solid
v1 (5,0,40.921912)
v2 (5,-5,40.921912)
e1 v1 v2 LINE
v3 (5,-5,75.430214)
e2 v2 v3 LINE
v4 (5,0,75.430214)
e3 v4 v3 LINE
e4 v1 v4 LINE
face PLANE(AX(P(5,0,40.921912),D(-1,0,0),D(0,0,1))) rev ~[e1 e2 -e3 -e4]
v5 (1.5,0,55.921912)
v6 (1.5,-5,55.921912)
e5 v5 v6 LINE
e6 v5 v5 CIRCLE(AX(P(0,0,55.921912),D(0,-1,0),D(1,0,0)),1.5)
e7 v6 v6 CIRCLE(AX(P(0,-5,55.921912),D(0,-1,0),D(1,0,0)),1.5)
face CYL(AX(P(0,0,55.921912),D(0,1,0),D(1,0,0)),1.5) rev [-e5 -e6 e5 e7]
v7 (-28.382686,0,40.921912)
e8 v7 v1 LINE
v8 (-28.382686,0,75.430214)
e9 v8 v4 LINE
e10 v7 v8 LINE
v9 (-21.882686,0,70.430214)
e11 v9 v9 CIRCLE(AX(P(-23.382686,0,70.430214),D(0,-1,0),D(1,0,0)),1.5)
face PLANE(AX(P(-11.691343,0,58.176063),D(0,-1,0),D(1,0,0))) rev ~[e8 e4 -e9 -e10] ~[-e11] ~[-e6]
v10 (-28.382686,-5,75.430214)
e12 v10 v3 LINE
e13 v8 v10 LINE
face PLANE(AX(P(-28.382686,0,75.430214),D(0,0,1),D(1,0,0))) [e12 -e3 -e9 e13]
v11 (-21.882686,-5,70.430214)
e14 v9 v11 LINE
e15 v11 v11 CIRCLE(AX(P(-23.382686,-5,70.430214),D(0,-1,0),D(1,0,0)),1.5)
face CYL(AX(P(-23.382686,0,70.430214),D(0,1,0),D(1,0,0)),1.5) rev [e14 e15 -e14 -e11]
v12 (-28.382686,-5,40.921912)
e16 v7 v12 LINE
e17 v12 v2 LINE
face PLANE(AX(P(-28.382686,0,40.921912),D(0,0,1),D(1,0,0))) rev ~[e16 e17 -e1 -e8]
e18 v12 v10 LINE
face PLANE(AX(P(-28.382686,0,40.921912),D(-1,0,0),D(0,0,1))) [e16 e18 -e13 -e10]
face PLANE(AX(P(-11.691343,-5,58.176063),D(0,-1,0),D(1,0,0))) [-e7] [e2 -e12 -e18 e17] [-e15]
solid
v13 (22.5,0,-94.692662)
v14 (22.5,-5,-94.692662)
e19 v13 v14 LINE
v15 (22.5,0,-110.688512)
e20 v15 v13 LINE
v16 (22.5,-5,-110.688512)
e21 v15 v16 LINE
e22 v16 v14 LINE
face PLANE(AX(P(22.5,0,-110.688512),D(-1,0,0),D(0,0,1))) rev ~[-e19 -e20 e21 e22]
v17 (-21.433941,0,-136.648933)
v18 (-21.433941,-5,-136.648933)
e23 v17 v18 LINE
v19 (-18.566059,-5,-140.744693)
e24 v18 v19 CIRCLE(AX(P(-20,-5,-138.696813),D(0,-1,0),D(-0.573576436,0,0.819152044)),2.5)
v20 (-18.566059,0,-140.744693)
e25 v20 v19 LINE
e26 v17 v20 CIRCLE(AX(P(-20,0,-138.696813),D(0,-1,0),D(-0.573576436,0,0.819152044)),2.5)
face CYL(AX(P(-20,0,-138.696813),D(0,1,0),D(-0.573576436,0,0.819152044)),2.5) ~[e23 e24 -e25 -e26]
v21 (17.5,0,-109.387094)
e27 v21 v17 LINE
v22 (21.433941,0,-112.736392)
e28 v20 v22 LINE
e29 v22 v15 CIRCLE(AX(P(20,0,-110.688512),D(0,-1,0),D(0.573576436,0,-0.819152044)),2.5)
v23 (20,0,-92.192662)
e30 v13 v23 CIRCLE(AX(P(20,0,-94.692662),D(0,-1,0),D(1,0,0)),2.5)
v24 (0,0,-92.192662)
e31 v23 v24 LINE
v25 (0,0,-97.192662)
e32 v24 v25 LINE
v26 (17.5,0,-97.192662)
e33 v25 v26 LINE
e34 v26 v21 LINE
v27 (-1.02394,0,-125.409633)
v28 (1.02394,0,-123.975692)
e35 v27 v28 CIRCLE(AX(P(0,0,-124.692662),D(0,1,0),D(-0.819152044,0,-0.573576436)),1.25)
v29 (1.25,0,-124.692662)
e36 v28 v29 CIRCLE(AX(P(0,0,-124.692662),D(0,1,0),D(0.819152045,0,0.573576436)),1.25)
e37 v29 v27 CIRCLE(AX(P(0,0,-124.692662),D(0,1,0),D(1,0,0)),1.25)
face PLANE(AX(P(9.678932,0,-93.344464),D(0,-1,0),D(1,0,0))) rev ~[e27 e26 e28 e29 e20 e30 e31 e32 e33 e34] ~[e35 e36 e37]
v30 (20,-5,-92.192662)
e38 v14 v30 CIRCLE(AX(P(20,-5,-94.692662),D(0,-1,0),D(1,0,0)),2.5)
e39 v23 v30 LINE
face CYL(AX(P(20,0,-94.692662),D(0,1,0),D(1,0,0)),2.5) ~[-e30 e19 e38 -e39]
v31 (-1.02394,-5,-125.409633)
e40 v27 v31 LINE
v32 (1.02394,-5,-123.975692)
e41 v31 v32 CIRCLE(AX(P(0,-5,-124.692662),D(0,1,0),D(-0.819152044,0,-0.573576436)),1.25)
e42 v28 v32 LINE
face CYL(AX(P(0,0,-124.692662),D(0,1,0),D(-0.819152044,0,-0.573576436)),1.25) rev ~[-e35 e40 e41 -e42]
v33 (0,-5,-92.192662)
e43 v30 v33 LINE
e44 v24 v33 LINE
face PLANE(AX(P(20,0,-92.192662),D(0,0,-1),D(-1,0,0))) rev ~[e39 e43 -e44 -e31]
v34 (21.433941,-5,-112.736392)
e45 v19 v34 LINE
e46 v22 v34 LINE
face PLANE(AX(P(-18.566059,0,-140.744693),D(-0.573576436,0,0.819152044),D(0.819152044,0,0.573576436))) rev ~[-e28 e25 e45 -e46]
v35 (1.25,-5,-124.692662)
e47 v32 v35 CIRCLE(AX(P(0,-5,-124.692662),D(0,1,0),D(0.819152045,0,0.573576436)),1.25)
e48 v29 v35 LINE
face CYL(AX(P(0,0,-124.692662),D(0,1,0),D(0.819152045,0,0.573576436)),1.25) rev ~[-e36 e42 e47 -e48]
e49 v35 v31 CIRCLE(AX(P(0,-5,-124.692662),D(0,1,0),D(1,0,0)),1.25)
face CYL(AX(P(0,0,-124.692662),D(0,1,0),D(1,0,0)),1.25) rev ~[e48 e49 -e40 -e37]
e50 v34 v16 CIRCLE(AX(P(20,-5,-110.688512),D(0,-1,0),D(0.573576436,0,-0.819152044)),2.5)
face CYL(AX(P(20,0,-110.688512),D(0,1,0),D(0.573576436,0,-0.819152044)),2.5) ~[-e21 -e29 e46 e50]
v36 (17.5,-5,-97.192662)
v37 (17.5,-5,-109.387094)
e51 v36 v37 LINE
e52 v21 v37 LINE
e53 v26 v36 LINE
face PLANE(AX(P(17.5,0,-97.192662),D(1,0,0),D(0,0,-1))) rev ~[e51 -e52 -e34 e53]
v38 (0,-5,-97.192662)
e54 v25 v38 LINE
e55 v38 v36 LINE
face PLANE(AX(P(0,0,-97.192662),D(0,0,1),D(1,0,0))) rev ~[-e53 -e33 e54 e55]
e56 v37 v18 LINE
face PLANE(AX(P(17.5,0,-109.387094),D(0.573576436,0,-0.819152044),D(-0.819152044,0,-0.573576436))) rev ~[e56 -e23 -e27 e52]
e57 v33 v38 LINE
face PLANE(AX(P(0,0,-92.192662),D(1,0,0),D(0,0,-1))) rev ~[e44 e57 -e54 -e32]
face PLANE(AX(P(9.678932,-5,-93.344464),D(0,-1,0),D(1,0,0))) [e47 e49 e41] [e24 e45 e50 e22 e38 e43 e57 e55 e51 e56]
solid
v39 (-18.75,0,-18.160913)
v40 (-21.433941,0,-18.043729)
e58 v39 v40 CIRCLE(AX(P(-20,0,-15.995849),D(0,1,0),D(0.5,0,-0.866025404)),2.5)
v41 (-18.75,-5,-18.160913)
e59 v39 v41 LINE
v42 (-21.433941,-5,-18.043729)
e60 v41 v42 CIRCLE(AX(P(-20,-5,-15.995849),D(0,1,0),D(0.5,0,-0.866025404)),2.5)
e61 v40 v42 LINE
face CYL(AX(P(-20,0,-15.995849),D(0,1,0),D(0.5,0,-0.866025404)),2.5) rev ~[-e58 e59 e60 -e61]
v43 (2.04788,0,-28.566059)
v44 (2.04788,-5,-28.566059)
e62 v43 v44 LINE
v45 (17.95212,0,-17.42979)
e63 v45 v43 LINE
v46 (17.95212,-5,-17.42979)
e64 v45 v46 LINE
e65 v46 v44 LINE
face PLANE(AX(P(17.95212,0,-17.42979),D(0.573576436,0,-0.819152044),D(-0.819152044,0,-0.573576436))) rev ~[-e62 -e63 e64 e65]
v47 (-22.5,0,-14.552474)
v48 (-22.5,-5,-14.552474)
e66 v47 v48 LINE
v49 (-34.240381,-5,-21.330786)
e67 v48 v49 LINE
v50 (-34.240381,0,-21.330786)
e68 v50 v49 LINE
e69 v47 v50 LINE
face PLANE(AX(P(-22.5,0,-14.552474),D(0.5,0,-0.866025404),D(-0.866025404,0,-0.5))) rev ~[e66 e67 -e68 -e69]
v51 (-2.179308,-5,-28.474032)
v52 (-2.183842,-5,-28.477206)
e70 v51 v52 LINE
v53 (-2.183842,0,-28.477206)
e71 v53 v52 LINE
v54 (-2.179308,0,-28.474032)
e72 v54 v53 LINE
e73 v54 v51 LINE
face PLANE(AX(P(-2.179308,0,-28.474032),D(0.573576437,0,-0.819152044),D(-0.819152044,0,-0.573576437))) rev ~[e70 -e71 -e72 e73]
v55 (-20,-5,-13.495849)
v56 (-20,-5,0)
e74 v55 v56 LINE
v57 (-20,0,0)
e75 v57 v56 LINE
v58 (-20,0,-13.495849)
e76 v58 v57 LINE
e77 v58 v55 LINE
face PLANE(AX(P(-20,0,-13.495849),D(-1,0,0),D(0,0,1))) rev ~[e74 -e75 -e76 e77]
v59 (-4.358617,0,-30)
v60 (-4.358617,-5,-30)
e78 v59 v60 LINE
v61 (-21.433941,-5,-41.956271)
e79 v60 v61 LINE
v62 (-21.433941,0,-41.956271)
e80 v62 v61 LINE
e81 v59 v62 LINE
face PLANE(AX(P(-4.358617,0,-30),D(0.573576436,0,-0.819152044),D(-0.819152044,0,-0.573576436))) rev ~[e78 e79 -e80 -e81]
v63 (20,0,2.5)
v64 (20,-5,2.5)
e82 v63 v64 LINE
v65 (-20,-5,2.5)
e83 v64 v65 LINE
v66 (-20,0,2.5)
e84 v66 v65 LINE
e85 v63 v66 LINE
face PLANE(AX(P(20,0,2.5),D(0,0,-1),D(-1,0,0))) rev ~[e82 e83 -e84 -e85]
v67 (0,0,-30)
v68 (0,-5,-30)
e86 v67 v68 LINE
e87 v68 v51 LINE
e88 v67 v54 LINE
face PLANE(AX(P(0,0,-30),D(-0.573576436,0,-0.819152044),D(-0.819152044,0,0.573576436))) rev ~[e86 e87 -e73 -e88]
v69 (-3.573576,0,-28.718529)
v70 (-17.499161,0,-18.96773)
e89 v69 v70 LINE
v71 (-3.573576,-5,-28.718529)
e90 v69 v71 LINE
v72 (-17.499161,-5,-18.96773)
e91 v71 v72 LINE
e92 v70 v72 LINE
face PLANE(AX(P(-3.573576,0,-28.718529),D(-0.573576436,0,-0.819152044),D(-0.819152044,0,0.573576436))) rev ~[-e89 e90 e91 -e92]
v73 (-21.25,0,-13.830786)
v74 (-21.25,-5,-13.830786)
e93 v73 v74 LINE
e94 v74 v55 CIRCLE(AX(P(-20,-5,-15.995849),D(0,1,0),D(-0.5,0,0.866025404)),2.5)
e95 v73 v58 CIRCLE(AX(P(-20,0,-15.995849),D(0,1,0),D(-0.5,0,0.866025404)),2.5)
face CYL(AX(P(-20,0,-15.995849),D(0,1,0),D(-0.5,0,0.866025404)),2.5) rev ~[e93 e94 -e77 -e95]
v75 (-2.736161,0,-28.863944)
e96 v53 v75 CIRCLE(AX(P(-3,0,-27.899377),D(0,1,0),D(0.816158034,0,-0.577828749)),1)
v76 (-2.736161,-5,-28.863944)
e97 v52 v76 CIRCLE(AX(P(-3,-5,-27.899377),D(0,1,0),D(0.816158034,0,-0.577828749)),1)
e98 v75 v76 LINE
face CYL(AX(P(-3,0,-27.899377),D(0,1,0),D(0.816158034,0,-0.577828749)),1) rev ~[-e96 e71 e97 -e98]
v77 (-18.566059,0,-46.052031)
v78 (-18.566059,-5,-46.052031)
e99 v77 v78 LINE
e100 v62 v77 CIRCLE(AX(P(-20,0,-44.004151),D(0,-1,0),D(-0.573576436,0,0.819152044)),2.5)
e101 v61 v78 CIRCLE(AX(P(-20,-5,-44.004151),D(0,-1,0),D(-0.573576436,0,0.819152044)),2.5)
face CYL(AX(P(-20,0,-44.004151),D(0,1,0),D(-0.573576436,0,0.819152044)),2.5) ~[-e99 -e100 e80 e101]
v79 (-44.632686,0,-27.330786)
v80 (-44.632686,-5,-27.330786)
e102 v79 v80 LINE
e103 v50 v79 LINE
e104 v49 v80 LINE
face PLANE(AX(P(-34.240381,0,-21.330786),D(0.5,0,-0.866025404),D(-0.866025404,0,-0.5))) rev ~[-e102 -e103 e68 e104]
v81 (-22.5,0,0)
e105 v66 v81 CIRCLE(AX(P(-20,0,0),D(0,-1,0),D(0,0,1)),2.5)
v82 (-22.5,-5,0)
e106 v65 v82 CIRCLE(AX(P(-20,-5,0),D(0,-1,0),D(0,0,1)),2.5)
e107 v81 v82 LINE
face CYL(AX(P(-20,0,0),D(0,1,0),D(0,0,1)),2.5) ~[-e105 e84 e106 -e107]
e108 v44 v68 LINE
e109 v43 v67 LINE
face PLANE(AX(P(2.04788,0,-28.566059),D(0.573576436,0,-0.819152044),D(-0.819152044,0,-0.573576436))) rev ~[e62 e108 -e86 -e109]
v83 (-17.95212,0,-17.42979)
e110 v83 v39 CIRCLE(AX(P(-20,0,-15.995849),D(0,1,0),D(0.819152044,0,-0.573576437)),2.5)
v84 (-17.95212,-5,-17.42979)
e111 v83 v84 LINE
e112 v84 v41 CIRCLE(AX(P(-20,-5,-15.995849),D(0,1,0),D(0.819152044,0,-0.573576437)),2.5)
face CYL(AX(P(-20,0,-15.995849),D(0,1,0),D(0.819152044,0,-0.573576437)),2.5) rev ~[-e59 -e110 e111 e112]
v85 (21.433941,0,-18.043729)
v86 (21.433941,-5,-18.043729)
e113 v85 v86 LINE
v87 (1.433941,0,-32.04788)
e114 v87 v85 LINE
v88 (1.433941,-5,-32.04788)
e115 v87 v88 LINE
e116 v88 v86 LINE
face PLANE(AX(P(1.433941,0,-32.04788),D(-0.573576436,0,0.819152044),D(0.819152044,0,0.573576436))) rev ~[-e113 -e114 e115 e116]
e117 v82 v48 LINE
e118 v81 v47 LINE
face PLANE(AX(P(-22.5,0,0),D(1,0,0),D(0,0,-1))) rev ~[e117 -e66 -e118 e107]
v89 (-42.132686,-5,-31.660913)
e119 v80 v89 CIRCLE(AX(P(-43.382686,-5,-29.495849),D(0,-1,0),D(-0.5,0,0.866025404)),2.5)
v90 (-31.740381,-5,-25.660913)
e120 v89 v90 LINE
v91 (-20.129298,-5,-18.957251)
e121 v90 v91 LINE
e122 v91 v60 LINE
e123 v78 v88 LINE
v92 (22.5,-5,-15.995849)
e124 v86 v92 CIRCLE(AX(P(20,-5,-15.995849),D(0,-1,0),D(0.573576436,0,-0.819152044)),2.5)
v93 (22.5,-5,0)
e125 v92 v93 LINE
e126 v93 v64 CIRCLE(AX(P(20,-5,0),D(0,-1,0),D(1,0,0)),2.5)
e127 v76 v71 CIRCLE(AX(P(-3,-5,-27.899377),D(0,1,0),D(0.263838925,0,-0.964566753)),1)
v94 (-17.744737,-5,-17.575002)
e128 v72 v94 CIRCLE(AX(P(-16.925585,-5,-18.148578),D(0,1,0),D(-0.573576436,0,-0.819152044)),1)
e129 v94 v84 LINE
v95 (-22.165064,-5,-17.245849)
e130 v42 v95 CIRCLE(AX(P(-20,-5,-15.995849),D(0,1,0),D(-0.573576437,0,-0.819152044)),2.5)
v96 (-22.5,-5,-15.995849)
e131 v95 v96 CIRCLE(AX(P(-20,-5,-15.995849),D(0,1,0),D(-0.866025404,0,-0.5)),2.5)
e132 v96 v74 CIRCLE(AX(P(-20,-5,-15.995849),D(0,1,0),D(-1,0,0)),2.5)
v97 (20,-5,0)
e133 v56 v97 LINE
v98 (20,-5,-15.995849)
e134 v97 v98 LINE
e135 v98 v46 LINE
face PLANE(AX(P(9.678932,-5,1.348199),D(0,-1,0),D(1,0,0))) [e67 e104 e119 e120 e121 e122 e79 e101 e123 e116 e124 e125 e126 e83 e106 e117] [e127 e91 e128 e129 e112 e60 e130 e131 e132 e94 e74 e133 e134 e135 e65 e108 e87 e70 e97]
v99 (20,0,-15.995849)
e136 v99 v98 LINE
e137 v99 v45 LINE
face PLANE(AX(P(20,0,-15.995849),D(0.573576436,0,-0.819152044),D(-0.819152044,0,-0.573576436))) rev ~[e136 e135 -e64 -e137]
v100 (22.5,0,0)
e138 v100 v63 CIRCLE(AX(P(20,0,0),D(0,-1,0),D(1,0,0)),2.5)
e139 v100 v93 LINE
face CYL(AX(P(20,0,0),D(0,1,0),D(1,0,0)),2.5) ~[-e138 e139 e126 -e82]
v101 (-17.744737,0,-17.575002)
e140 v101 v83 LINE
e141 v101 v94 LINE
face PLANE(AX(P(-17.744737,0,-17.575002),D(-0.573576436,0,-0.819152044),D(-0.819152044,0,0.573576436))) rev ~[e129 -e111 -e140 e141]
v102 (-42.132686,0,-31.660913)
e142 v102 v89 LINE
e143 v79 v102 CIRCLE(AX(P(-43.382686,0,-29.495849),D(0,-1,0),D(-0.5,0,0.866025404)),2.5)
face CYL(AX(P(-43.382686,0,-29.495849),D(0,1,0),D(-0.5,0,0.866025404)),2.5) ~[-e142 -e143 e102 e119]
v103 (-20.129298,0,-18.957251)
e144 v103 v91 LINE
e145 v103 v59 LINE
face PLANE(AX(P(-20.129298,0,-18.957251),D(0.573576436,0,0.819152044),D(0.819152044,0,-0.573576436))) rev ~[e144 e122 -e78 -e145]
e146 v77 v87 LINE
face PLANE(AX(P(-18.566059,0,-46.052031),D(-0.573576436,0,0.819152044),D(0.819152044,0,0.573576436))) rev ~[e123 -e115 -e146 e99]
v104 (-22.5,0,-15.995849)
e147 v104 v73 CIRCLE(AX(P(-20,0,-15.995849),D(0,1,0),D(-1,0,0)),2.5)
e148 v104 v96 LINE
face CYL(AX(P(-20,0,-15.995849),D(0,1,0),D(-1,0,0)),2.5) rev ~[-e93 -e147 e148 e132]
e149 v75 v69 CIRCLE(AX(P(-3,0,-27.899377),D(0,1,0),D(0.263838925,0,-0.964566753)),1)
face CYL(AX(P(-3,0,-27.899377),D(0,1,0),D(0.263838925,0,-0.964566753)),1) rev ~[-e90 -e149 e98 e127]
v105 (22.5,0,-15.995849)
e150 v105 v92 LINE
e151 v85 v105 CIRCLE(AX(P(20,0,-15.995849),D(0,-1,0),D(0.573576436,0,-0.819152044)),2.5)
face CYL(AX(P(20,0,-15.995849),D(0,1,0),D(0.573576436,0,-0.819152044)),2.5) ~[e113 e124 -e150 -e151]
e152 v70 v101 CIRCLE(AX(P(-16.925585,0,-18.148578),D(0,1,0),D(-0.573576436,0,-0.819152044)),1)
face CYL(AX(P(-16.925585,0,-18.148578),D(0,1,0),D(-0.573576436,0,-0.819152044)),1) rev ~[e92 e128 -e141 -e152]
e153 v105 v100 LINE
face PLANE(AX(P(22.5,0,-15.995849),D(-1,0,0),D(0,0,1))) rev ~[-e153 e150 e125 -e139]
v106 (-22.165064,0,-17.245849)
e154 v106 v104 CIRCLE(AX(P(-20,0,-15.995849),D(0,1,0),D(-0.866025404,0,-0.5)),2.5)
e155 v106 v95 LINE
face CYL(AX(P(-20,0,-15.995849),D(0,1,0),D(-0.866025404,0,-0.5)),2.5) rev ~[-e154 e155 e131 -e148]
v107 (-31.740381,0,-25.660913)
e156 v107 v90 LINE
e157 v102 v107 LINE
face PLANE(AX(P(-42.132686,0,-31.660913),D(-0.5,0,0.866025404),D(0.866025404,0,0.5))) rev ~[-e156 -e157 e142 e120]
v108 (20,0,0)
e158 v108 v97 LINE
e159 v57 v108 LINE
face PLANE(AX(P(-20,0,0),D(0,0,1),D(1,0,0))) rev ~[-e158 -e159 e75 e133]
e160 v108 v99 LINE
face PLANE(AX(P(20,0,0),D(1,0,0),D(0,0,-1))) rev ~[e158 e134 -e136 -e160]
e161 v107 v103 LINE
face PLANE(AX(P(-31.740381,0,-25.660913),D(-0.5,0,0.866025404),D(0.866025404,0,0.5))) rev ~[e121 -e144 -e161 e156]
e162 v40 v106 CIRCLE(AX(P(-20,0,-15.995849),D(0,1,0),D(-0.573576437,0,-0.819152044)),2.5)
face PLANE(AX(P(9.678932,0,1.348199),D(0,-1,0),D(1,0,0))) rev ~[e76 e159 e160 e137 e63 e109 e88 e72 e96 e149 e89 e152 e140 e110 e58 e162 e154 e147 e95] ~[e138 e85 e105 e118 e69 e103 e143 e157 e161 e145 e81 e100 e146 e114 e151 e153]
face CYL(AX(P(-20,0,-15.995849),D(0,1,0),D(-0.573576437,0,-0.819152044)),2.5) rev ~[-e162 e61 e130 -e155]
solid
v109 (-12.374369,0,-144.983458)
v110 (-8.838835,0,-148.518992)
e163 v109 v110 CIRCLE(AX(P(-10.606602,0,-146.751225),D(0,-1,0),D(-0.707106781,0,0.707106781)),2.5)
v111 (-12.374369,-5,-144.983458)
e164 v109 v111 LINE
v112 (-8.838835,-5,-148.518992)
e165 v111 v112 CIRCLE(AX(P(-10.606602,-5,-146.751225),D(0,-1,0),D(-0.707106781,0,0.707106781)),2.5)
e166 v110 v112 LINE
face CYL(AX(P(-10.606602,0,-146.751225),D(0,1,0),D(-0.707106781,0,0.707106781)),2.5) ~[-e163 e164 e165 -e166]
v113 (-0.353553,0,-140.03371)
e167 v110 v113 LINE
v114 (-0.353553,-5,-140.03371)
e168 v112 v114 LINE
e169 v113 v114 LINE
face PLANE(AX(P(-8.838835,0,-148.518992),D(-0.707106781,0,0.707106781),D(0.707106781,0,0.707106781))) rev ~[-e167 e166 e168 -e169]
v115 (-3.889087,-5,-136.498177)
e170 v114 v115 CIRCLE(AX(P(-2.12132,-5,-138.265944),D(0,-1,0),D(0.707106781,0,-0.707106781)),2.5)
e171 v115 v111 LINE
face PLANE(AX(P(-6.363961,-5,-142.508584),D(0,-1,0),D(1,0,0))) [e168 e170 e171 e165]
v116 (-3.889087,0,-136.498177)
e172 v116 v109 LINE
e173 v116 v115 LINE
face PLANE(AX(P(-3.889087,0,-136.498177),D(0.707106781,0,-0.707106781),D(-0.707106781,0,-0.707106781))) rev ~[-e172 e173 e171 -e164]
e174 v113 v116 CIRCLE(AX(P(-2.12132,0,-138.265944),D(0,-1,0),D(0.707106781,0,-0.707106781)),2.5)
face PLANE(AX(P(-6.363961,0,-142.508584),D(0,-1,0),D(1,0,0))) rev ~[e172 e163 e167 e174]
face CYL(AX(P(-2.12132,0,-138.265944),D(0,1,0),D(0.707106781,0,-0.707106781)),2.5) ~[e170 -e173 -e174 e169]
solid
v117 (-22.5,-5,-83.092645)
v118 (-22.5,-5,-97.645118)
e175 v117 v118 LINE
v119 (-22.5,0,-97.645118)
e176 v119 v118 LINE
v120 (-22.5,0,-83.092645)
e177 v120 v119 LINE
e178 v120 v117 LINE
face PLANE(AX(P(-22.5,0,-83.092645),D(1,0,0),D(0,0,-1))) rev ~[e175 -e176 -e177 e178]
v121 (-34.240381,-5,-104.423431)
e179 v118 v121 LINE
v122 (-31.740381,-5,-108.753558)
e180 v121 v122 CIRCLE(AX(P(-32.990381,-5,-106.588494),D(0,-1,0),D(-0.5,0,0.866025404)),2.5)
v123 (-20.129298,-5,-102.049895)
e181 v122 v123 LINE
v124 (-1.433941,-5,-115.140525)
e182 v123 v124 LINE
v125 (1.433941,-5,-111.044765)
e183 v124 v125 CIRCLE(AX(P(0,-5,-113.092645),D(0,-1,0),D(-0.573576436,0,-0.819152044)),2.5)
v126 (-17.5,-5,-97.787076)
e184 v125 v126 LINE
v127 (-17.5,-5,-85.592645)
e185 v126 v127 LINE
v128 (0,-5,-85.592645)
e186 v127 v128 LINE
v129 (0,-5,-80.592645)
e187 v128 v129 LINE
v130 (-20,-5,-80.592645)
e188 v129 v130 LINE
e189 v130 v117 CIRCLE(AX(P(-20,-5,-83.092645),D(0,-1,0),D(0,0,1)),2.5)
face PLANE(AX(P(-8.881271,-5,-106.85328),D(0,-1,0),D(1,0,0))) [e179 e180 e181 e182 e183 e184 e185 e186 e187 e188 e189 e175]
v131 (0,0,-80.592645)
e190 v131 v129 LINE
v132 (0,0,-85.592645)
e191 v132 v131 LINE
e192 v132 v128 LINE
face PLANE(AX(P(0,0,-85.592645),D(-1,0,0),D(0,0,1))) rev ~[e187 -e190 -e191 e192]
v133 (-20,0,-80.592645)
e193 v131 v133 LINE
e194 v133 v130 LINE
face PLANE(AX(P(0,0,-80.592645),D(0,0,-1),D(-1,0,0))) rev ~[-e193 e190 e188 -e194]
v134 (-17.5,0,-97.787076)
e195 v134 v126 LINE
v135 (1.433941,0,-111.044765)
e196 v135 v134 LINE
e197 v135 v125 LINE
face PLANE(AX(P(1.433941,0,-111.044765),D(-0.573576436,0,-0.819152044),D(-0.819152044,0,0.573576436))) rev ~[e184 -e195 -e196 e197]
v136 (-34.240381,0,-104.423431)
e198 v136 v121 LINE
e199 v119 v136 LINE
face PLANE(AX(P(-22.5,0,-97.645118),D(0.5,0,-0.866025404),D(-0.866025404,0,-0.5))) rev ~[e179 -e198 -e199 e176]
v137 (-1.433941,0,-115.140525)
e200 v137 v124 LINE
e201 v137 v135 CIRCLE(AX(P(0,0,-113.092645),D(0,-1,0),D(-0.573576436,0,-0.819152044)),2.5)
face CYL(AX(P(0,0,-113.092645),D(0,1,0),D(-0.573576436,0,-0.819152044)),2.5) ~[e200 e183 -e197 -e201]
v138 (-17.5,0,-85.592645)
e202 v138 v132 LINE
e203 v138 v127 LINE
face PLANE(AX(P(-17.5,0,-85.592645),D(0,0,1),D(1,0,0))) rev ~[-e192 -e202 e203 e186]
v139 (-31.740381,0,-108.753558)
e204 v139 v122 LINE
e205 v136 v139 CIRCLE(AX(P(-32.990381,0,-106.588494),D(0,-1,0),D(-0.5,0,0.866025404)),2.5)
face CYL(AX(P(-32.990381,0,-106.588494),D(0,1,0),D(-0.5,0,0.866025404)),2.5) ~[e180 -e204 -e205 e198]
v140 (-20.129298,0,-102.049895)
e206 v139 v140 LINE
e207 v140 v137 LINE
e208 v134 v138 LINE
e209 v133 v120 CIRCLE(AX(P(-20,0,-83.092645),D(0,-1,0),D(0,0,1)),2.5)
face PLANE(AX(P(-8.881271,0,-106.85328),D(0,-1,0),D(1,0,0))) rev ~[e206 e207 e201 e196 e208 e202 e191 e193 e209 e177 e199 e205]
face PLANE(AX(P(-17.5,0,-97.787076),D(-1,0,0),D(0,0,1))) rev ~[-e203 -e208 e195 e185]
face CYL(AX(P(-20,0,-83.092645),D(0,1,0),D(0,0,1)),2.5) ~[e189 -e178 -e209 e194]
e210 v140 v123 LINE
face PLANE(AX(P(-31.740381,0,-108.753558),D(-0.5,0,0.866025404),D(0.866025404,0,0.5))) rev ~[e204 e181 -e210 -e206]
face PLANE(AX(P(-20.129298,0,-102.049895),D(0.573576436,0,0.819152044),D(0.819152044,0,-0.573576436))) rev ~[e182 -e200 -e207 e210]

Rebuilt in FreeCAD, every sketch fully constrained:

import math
import FreeCAD as App
import Part
import Sketcher
from FreeCAD import Vector
Q = App.Units.Quantity


def add_polygon(sketch, points):
    """Adds a closed chain of lines whose ends are joined by coincident constraints."""
    first, n = sketch.GeometryCount, len(points)
    for a, b in zip(points, points[1:] + points[:1]):
        sketch.addGeometry(Part.LineSegment(App.Vector(*a, 0), App.Vector(*b, 0)), False)
    for i in range(n):
        sketch.addConstraint(Sketcher.Constraint("Coincident", first + i, 2, first + (i + 1) % n, 1))

doc = App.newDocument("Part")
params = doc.addObject("Spreadsheet::Sheet", "Params")
for row, (alias, value) in enumerate([
    ("sketch1_radius", "1 mm"),
    ("sketch1_radius2", "2.5 mm"),
    ("sketch1_width", "40 mm"),
    ("sketch1_length", "12 mm"),
    ("sketch1_length2", "17 mm"),
    ("pad1_length", "5 mm"),
    ("sketch2_radius", "2.5 mm"),
    ("sketch2_width", "20 mm"),
    ("sketch2_height", "5 mm"),
    ("sketch2_width2", "17.5 mm"),
    ("pad2_length", "5 mm"),
    ("sketch3_radius", "2.5 mm"),
    ("sketch3_width", "20 mm"),
    ("sketch3_height", "5 mm"),
    ("sketch3_radius2", "1.25 mm"),
    ("sketch3_width2", "17.5 mm"),
    ("pad3_length", "5 mm"),
    ("sketch4_radius", "2.5 mm"),
    ("sketch4_length", "12 mm"),
    ("pad4_length", "5 mm"),
    ("sketch5_diameter", "3 mm"),
    ("pad5_length", "5 mm"),
], start=1):
    params.set(f"A{row}", alias)
    params.set(f"B{row}", "=" + value)
    params.setAlias(f"B{row}", alias)

body = doc.addObject("PartDesign::Body", "Body")

# Sketch on XZ plane
sketch1 = doc.addObject("Sketcher::SketchObject", "Sketch")
body.addObject(sketch1)
sketch1.AttachmentSupport = (doc.XZ_Plane, [""])
sketch1.MapMode = "FlatFace"
sketch1.addGeometry([
    Part.LineSegment(Vector(-31.74, -25.661, 0), Vector(-20.129, -18.957, 0)),  # 0
    Part.LineSegment(Vector(-20.129, -18.957, 0), Vector(-4.359, -30, 0)),  # 1
    Part.LineSegment(Vector(-4.359, -30, 0), Vector(-21.434, -41.956, 0)),  # 2
    Part.ArcOfCircle(Part.Circle(Vector(-20, -44.004, 0), Vector(0, 0, 1), 2.5), math.radians(125), math.radians(305)),  # 3
    Part.LineSegment(Vector(-18.566, -46.052, 0), Vector(1.434, -32.048, 0)),  # 4
    Part.LineSegment(Vector(1.434, -32.048, 0), Vector(21.434, -18.044, 0)),  # 5
    Part.ArcOfCircle(Part.Circle(Vector(20, -15.996, 0), Vector(0, 0, 1), 2.5), math.radians(-55), math.radians(0)),  # 6
    Part.LineSegment(Vector(22.5, -15.996, 0), Vector(22.5, 0, 0)),  # 7
    Part.ArcOfCircle(Part.Circle(Vector(20, 0, 0), Vector(0, 0, 1), 2.5), math.radians(0), math.radians(90)),  # 8
    Part.LineSegment(Vector(20, 2.5, 0), Vector(-20, 2.5, 0)),  # 9
    Part.ArcOfCircle(Part.Circle(Vector(-20, 0, 0), Vector(0, 0, 1), 2.5), math.radians(90), math.radians(180)),  # 10
    Part.LineSegment(Vector(-22.5, 0, 0), Vector(-22.5, -14.552, 0)),  # 11
    Part.LineSegment(Vector(-22.5, -14.552, 0), Vector(-34.24, -21.331, 0)),  # 12
    Part.LineSegment(Vector(-34.24, -21.331, 0), Vector(-44.633, -27.331, 0)),  # 13
    Part.ArcOfCircle(Part.Circle(Vector(-43.383, -29.496, 0), Vector(0, 0, 1), 2.5), math.radians(120), math.radians(300)),  # 14
    Part.LineSegment(Vector(-42.133, -31.661, 0), Vector(-31.74, -25.661, 0)),  # 15
    Part.ArcOfCircle(Part.Circle(Vector(-20, -15.996, 0), Vector(0, 0, 1), 2.5), math.radians(-60), math.radians(-35)),  # 16
    Part.ArcOfCircle(Part.Circle(Vector(-20, -15.996, 0), Vector(0, 0, 1), 2.5), math.radians(-125), math.radians(-60)),  # 17
    Part.ArcOfCircle(Part.Circle(Vector(-20, -15.996, 0), Vector(0, 0, 1), 2.5), math.radians(-150), math.radians(-125)),  # 18
    Part.ArcOfCircle(Part.Circle(Vector(-20, -15.996, 0), Vector(0, 0, 1), 2.5), math.radians(180), math.radians(210)),  # 19
    Part.ArcOfCircle(Part.Circle(Vector(-20, -15.996, 0), Vector(0, 0, 1), 2.5), math.radians(120), math.radians(180)),  # 20
    Part.ArcOfCircle(Part.Circle(Vector(-20, -15.996, 0), Vector(0, 0, 1), 2.5), math.radians(90), math.radians(120)),  # 21
    Part.LineSegment(Vector(-20, -13.496, 0), Vector(-20, 0, 0)),  # 22
    Part.LineSegment(Vector(-20, 0, 0), Vector(20, 0, 0)),  # 23
    Part.LineSegment(Vector(20, 0, 0), Vector(20, -15.996, 0)),  # 24
    Part.LineSegment(Vector(20, -15.996, 0), Vector(17.952, -17.43, 0)),  # 25
    Part.LineSegment(Vector(17.952, -17.43, 0), Vector(2.048, -28.566, 0)),  # 26
    Part.LineSegment(Vector(2.048, -28.566, 0), Vector(0, -30, 0)),  # 27
    Part.LineSegment(Vector(0, -30, 0), Vector(-2.179, -28.474, 0)),  # 28
    Part.LineSegment(Vector(-2.179, -28.474, 0), Vector(-2.184, -28.477, 0)),  # 29
    Part.ArcOfCircle(Part.Circle(Vector(-3, -27.899, 0), Vector(0, 0, 1), 1), math.radians(-75), math.radians(-35)),  # 30
    Part.ArcOfCircle(Part.Circle(Vector(-3, -27.899, 0), Vector(0, 0, 1), 1), math.radians(-125), math.radians(-75)),  # 31
    Part.LineSegment(Vector(-3.574, -28.719, 0), Vector(-17.499, -18.968, 0)),  # 32
    Part.ArcOfCircle(Part.Circle(Vector(-16.926, -18.149, 0), Vector(0, 0, 1), 1), math.radians(145), math.radians(235)),  # 33
    Part.LineSegment(Vector(-17.745, -17.575, 0), Vector(-17.952, -17.43, 0)),  # 34
], False)
sketch1.addConstraint([
    Sketcher.Constraint("Coincident", 0, 2, 1, 1),
    Sketcher.Constraint("Coincident", 1, 2, 2, 1),
    Sketcher.Constraint("Tangent", 2, 2, 3, 1),
    Sketcher.Constraint("Tangent", 3, 2, 4, 1),
    Sketcher.Constraint("Coincident", 4, 2, 5, 1),
    Sketcher.Constraint("Tangent", 5, 2, 6, 1),
    Sketcher.Constraint("Tangent", 6, 2, 7, 1),
    Sketcher.Constraint("Tangent", 7, 2, 8, 1),
    Sketcher.Constraint("Tangent", 8, 2, 9, 1),
    Sketcher.Constraint("Tangent", 9, 2, 10, 1),
    Sketcher.Constraint("Tangent", 10, 2, 11, 1),
    Sketcher.Constraint("Coincident", 11, 2, 12, 1),
    Sketcher.Constraint("Coincident", 12, 2, 13, 1),
    Sketcher.Constraint("Tangent", 13, 2, 14, 1),
    Sketcher.Constraint("Tangent", 14, 2, 15, 1),
    Sketcher.Constraint("Coincident", 15, 2, 0, 1),
    Sketcher.Constraint("Tangent", 16, 1, 17, 2),
    Sketcher.Constraint("Tangent", 17, 1, 18, 2),
    Sketcher.Constraint("Tangent", 18, 1, 19, 2),
    Sketcher.Constraint("Tangent", 19, 1, 20, 2),
    Sketcher.Constraint("Tangent", 20, 1, 21, 2),
    Sketcher.Constraint("Coincident", 21, 1, 22, 1),
    Sketcher.Constraint("Coincident", 22, 2, 23, 1),
    Sketcher.Constraint("Coincident", 23, 2, 24, 1),
    Sketcher.Constraint("Coincident", 24, 2, 25, 1),
    Sketcher.Constraint("Coincident", 25, 2, 26, 1),
    Sketcher.Constraint("Coincident", 26, 2, 27, 1),
    Sketcher.Constraint("Coincident", 27, 2, 28, 1),
    Sketcher.Constraint("Coincident", 28, 2, 29, 1),
    Sketcher.Constraint("Coincident", 29, 2, 30, 2),
    Sketcher.Constraint("Tangent", 30, 1, 31, 2),
    Sketcher.Constraint("Tangent", 31, 1, 32, 1),
    Sketcher.Constraint("Tangent", 32, 2, 33, 2),
    Sketcher.Constraint("Coincident", 33, 1, 34, 1),
    Sketcher.Constraint("Coincident", 34, 2, 16, 2),
    Sketcher.Constraint("Vertical", 7),
    Sketcher.Constraint("Horizontal", 9),
    Sketcher.Constraint("Vertical", 11),
    Sketcher.Constraint("Vertical", 22),
    Sketcher.Constraint("Horizontal", 23),
    Sketcher.Constraint("Vertical", 24),
    Sketcher.Constraint("Coincident", 18, 3, 16, 3),
    Sketcher.Constraint("Coincident", 20, 3, 16, 3),
    Sketcher.Constraint("Coincident", 22, 2, 10, 3),
    Sketcher.Constraint("Coincident", 23, 2, 8, 3),
    Sketcher.Constraint("Coincident", 24, 2, 6, 3),
    Sketcher.Constraint("Equal", 3, 6),
    Sketcher.Constraint("Equal", 10, 14),
    Sketcher.Constraint("Equal", 14, 16),
    Sketcher.Constraint("Equal", 20, 21),
    Sketcher.Constraint("Equal", 30, 31),
    Sketcher.Constraint("Equal", 31, 33),
    Sketcher.Constraint("Symmetric", 8, 3, 10, 3, -1, 1),
    Sketcher.Constraint("Symmetric", 6, 3, 16, 3, -2),
    Sketcher.Constraint("Symmetric", 25, 2, 34, 2, -2),
    Sketcher.Constraint("PointOnObject", 27, 2, -2),
    Sketcher.Constraint("Parallel", 2, 4),
    Sketcher.Constraint("Parallel", 4, 5),
    Sketcher.Constraint("Parallel", 0, 12),
    Sketcher.Constraint("Parallel", 12, 13),
    Sketcher.Constraint("Parallel", 13, 15),
    Sketcher.Constraint("Parallel", 5, 25),
    Sketcher.Constraint("Parallel", 25, 26),
    Sketcher.Constraint("Parallel", 26, 27),
    Sketcher.Constraint("Parallel", 1, 28),
    Sketcher.Constraint("Parallel", 27, 29),
    Sketcher.Constraint("Parallel", 28, 32),
    Sketcher.Constraint("Parallel", 32, 34),
    Sketcher.Constraint("Horizontal", 5, 2, 17, 1),
    Sketcher.Constraint("Horizontal", 6, 2, 19, 1),
    Sketcher.Constraint("Horizontal", 1, 2, 27, 2),
    Sketcher.Constraint("Vertical", 3, 3, 10, 3),
    Sketcher.Constraint("Equal", 4, 5),
    Sketcher.Constraint("Equal", 13, 15),
    Sketcher.Constraint("Equal", 25, 27),
    Sketcher.Constraint("Radius", 30, 1.0),
    Sketcher.Constraint("Radius", 3, 2.5),
    Sketcher.Constraint("DistanceX", 9, 2, 9, 1, 40.0),
    Sketcher.Constraint("Angle", 0, Q("30 deg")),
    Sketcher.Constraint("Angle", 1, Q("-35 deg")),
    Sketcher.Constraint("Angle", 2, Q("-145 deg")),
    Sketcher.Constraint("Distance", 13, 12.0),
    Sketcher.Constraint("Distance", 32, 17.0),
    Sketcher.Constraint("DistanceX", 30, 3, -1, 1, 3.0),
    Sketcher.Constraint("DistanceY", 1, 2, -1, 1, 30.0),
    Sketcher.Constraint("DistanceY", 14, 3, 6, 3, 13.5),
    Sketcher.Constraint("DistanceX", 16, 1, -1, 1, 18.75),
    Sketcher.Constraint("DistanceX", 20, 1, -1, 1, 21.25),
    Sketcher.Constraint("DistanceY", 18, 1, 16, 3, 1.25),
    Sketcher.Constraint("DistanceY", 33, 1, -1, 1, 17.575002),
    Sketcher.Constraint("DistanceY", 0, 2, 21, 3, 2.961401),
    Sketcher.Constraint("DistanceX", 28, 2, -1, 1, 2.179308),
    Sketcher.Constraint("DistanceX", 30, 1, -1, 1, 2.736161),
])
sketch1.setExpression("Constraints[75]", "Params.sketch1_radius")
sketch1.setExpression("Constraints[76]", "Params.sketch1_radius2")
sketch1.setExpression("Constraints[77]", "Params.sketch1_width")
sketch1.setExpression("Constraints[81]", "Params.sketch1_length")
sketch1.setExpression("Constraints[82]", "Params.sketch1_length2")
pad1 = doc.addObject("PartDesign::Pad", "Pad")
body.addObject(pad1)
pad1.Profile = sketch1
pad1.setExpression("Length", "Params.pad1_length")
body2 = doc.addObject("PartDesign::Body", "Body001")

# Sketch on XZ plane
sketch2 = doc.addObject("Sketcher::SketchObject", "Sketch001")
body2.addObject(sketch2)
sketch2.AttachmentSupport = (doc.getObject("XZ_Plane001"), [""])
sketch2.MapMode = "FlatFace"
sketch2.addGeometry([
    Part.LineSegment(Vector(-22.5, -83.1, 0), Vector(-22.5, -97.6, 0)),  # 0
    Part.LineSegment(Vector(-22.5, -97.6, 0), Vector(-34.2, -104.4, 0)),  # 1
    Part.ArcOfCircle(Part.Circle(Vector(-33, -106.6, 0), Vector(0, 0, 1), 2.5), math.radians(120), math.radians(300)),  # 2
    Part.LineSegment(Vector(-31.7, -108.8, 0), Vector(-20.1, -102, 0)),  # 3
    Part.LineSegment(Vector(-20.1, -102, 0), Vector(-1.4, -115.1, 0)),  # 4
    Part.ArcOfCircle(Part.Circle(Vector(0, -113.1, 0), Vector(0, 0, 1), 2.5), math.radians(-125), math.radians(55)),  # 5
    Part.LineSegment(Vector(1.4, -111, 0), Vector(-17.5, -97.8, 0)),  # 6
    Part.LineSegment(Vector(-17.5, -97.8, 0), Vector(-17.5, -85.6, 0)),  # 7
    Part.LineSegment(Vector(-17.5, -85.6, 0), Vector(0, -85.6, 0)),  # 8
    Part.LineSegment(Vector(0, -85.6, 0), Vector(0, -80.6, 0)),  # 9
    Part.LineSegment(Vector(0, -80.6, 0), Vector(-20, -80.6, 0)),  # 10
    Part.ArcOfCircle(Part.Circle(Vector(-20, -83.1, 0), Vector(0, 0, 1), 2.5), math.radians(90), math.radians(180)),  # 11
], False)
sketch2.addConstraint([
    Sketcher.Constraint("Coincident", 0, 2, 1, 1),
    Sketcher.Constraint("Tangent", 1, 2, 2, 1),
    Sketcher.Constraint("Tangent", 2, 2, 3, 1),
    Sketcher.Constraint("Coincident", 3, 2, 4, 1),
    Sketcher.Constraint("Tangent", 4, 2, 5, 1),
    Sketcher.Constraint("Tangent", 5, 2, 6, 1),
    Sketcher.Constraint("Coincident", 6, 2, 7, 1),
    Sketcher.Constraint("Coincident", 7, 2, 8, 1),
    Sketcher.Constraint("Coincident", 8, 2, 9, 1),
    Sketcher.Constraint("Coincident", 9, 2, 10, 1),
    Sketcher.Constraint("Tangent", 10, 2, 11, 1),
    Sketcher.Constraint("Tangent", 11, 2, 0, 1),
    Sketcher.Constraint("Vertical", 0),
    Sketcher.Constraint("Vertical", 7),
    Sketcher.Constraint("Horizontal", 8),
    Sketcher.Constraint("Vertical", 9),
    Sketcher.Constraint("Horizontal", 10),
    Sketcher.Constraint("Equal", 2, 5),
    Sketcher.Constraint("Equal", 5, 11),
    Sketcher.Constraint("PointOnObject", 5, 3, -2),
    Sketcher.Constraint("PointOnObject", 8, 2, -2),
    Sketcher.Constraint("Parallel", 1, 3),
    Sketcher.Constraint("Parallel", 4, 6),
    Sketcher.Constraint("Radius", 2, 2.5),
    Sketcher.Constraint("DistanceX", 10, 2, 10, 1, 20.0),
    Sketcher.Constraint("DistanceY", 9, 1, 9, 2, 5.0),
    Sketcher.Constraint("Angle", 1, Q("-150 deg")),
    Sketcher.Constraint("Angle", 4, Q("-35 deg")),
    Sketcher.Constraint("DistanceX", 8, 1, 8, 2, 17.5),
    Sketcher.Constraint("DistanceY", 5, 3, 11, 3, 30.0),
    Sketcher.Constraint("DistanceY", 2, 3, 3, 2, 4.538599),
    Sketcher.Constraint("DistanceY", 0, 2, 0, 1, 14.552474),
    Sketcher.Constraint("DistanceY", 0, 2, -1, 1, 97.645118),
])
sketch2.setExpression("Constraints[23]", "Params.sketch2_radius")
sketch2.setExpression("Constraints[24]", "Params.sketch2_width")
sketch2.setExpression("Constraints[25]", "Params.sketch2_height")
sketch2.setExpression("Constraints[28]", "Params.sketch2_width2")
pad2 = doc.addObject("PartDesign::Pad", "Pad001")
body2.addObject(pad2)
pad2.Profile = sketch2
pad2.setExpression("Length", "Params.pad2_length")
body3 = doc.addObject("PartDesign::Body", "Body002")

# Sketch on XZ plane
sketch3 = doc.addObject("Sketcher::SketchObject", "Sketch002")
body3.addObject(sketch3)
sketch3.AttachmentSupport = (doc.getObject("XZ_Plane002"), [""])
sketch3.MapMode = "FlatFace"
sketch3.addGeometry([
    Part.LineSegment(Vector(0, -92.2, 0), Vector(0, -97.2, 0)),  # 0
    Part.LineSegment(Vector(0, -97.2, 0), Vector(17.5, -97.2, 0)),  # 1
    Part.LineSegment(Vector(17.5, -97.2, 0), Vector(17.5, -109.4, 0)),  # 2
    Part.LineSegment(Vector(17.5, -109.4, 0), Vector(-21.4, -136.6, 0)),  # 3
    Part.ArcOfCircle(Part.Circle(Vector(-20, -138.7, 0), Vector(0, 0, 1), 2.5), math.radians(125), math.radians(305)),  # 4
    Part.LineSegment(Vector(-18.6, -140.7, 0), Vector(21.4, -112.7, 0)),  # 5
    Part.ArcOfCircle(Part.Circle(Vector(20, -110.7, 0), Vector(0, 0, 1), 2.5), math.radians(-55), math.radians(0)),  # 6
    Part.LineSegment(Vector(22.5, -110.7, 0), Vector(22.5, -94.7, 0)),  # 7
    Part.ArcOfCircle(Part.Circle(Vector(20, -94.7, 0), Vector(0, 0, 1), 2.5), math.radians(0), math.radians(90)),  # 8
    Part.LineSegment(Vector(20, -92.2, 0), Vector(0, -92.2, 0)),  # 9
    Part.ArcOfCircle(Part.Circle(Vector(0, -124.7, 0), Vector(0, 0, 1), 1.2), math.radians(35), math.radians(215)),  # 10
    Part.ArcOfCircle(Part.Circle(Vector(0, -124.7, 0), Vector(0, 0, 1), 1.3), math.radians(0), math.radians(35)),  # 11
    Part.ArcOfCircle(Part.Circle(Vector(0, -124.7, 0), Vector(0, 0, 1), 1.2), math.radians(-145), math.radians(0)),  # 12
], False)
sketch3.addConstraint([
    Sketcher.Constraint("Coincident", 0, 2, 1, 1),
    Sketcher.Constraint("Coincident", 1, 2, 2, 1),
    Sketcher.Constraint("Coincident", 2, 2, 3, 1),
    Sketcher.Constraint("Tangent", 3, 2, 4, 1),
    Sketcher.Constraint("Tangent", 4, 2, 5, 1),
    Sketcher.Constraint("Tangent", 5, 2, 6, 1),
    Sketcher.Constraint("Tangent", 6, 2, 7, 1),
    Sketcher.Constraint("Tangent", 7, 2, 8, 1),
    Sketcher.Constraint("Tangent", 8, 2, 9, 1),
    Sketcher.Constraint("Coincident", 9, 2, 0, 1),
    Sketcher.Constraint("Tangent", 10, 1, 11, 2),
    Sketcher.Constraint("Tangent", 11, 1, 12, 2),
    Sketcher.Constraint("Tangent", 12, 1, 10, 2),
    Sketcher.Constraint("Vertical", 0),
    Sketcher.Constraint("Horizontal", 1),
    Sketcher.Constraint("Vertical", 2),
    Sketcher.Constraint("Vertical", 7),
    Sketcher.Constraint("Horizontal", 9),
    Sketcher.Constraint("Equal", 4, 6),
    Sketcher.Constraint("Equal", 6, 8),
    Sketcher.Constraint("PointOnObject", 10, 3, -2),
    Sketcher.Constraint("PointOnObject", 0, 2, -2),
    Sketcher.Constraint("Parallel", 3, 5),
    Sketcher.Constraint("Horizontal", 12, 3, 11, 1),
    Sketcher.Constraint("Radius", 4, 2.5),
    Sketcher.Constraint("DistanceX", 9, 2, 9, 1, 20.0),
    Sketcher.Constraint("DistanceY", 0, 2, 0, 1, 5.0),
    Sketcher.Constraint("Angle", 3, Q("-145 deg")),
    Sketcher.Constraint("Radius", 10, 1.25),
    Sketcher.Constraint("DistanceX", 1, 1, 1, 2, 17.5),
    Sketcher.Constraint("DistanceX", 4, 3, -1, 1, 20.0),
    Sketcher.Constraint("DistanceY", 10, 3, 8, 3, 30.0),
    Sketcher.Constraint("DistanceY", 2, 2, 2, 1, 12.194432),
    Sketcher.Constraint("DistanceY", 6, 3, -1, 1, 110.688512),
    Sketcher.Constraint("DistanceX", -1, 1, 10, 1, 1.02394),
    Sketcher.Constraint("DistanceX", 12, 1, -1, 1, 1.02394),
])
sketch3.setExpression("Constraints[24]", "Params.sketch3_radius")
sketch3.setExpression("Constraints[25]", "Params.sketch3_width")
sketch3.setExpression("Constraints[26]", "Params.sketch3_height")
sketch3.setExpression("Constraints[28]", "Params.sketch3_radius2")
sketch3.setExpression("Constraints[29]", "Params.sketch3_width2")
pad3 = doc.addObject("PartDesign::Pad", "Pad002")
body3.addObject(pad3)
pad3.Profile = sketch3
pad3.setExpression("Length", "Params.pad3_length")
body4 = doc.addObject("PartDesign::Body", "Body003")

# Sketch on XZ plane
sketch4 = doc.addObject("Sketcher::SketchObject", "Sketch003")
body4.addObject(sketch4)
sketch4.AttachmentSupport = (doc.getObject("XZ_Plane003"), [""])
sketch4.MapMode = "FlatFace"
sketch4.addGeometry([
    Part.ArcOfCircle(Part.Circle(Vector(-2.1, -138.3, 0), Vector(0, 0, 1), 2.5), math.radians(-45), math.radians(135)),
    Part.LineSegment(Vector(-3.9, -136.5, 0), Vector(-12.4, -145, 0)),
    Part.ArcOfCircle(Part.Circle(Vector(-10.6, -146.8, 0), Vector(0, 0, 1), 2.5), math.radians(135), math.radians(315)),
    Part.LineSegment(Vector(-8.8, -148.5, 0), Vector(-0.4, -140, 0)),
], False)
sketch4.addConstraint([
    Sketcher.Constraint("Tangent", 0, 2, 1, 1),
    Sketcher.Constraint("Tangent", 1, 2, 2, 1),
    Sketcher.Constraint("Tangent", 2, 2, 3, 1),
    Sketcher.Constraint("Tangent", 3, 2, 0, 1),
    Sketcher.Constraint("Equal", 0, 2),
    Sketcher.Constraint("Radius", 0, 2.5),
    Sketcher.Constraint("Angle", 1, Q("-135 deg")),
    Sketcher.Constraint("Distance", 1, 12.0),
    Sketcher.Constraint("DistanceX", 2, 3, -1, 1, 10.606602),
    Sketcher.Constraint("DistanceY", 2, 2, -1, 1, 148.518992),
])
sketch4.setExpression("Constraints[5]", "Params.sketch4_radius")
sketch4.setExpression("Constraints[7]", "Params.sketch4_length")
pad4 = doc.addObject("PartDesign::Pad", "Pad003")
body4.addObject(pad4)
pad4.Profile = sketch4
pad4.setExpression("Length", "Params.pad4_length")
body5 = doc.addObject("PartDesign::Body", "Body004")

# Sketch on XZ plane
sketch5 = doc.addObject("Sketcher::SketchObject", "Sketch004")
body5.addObject(sketch5)
sketch5.AttachmentSupport = (doc.getObject("XZ_Plane004"), [""])
sketch5.MapMode = "FlatFace"
add_polygon(sketch5, [(-28.4, 75.4), (-28.4, 40.9), (5, 40.9), (5, 75.4)])  # lines 0-3
sketch5.addGeometry(Part.Circle(Vector(0, 55.9, 0), Vector(0, 0, 1), 1.5), False)  # 4
sketch5.addGeometry(Part.Circle(Vector(-23.4, 70.4, 0), Vector(0, 0, 1), 1.5), False)  # 5
sketch5.addConstraint([
    Sketcher.Constraint("Vertical", 0),
    Sketcher.Constraint("Horizontal", 1),
    Sketcher.Constraint("Vertical", 2),
    Sketcher.Constraint("Horizontal", 3),
    Sketcher.Constraint("Equal", 4, 5),
    Sketcher.Constraint("PointOnObject", 4, 3, -2),
    Sketcher.Constraint("Diameter", 4, 3.0),
    Sketcher.Constraint("DistanceX", -1, 1, 1, 2, 5.0),
    Sketcher.Constraint("DistanceX", 0, 2, 5, 3, 5.0),
    Sketcher.Constraint("DistanceY", 0, 2, 4, 3, 15.0),
    Sketcher.Constraint("DistanceY", 5, 3, 2, 2, 5.0),
    Sketcher.Constraint("DistanceY", 0, 2, 0, 1, 34.508302),
    Sketcher.Constraint("DistanceX", 1, 1, 1, 2, 33.382686),
    Sketcher.Constraint("DistanceY", -1, 1, 4, 3, 55.921912),
])
sketch5.setExpression("Constraints[10]", "Params.sketch5_diameter")
pad5 = doc.addObject("PartDesign::Pad", "Pad004")
body5.addObject(pad5)
pad5.Profile = sketch5
pad5.setExpression("Length", "Params.pad5_length")

doc.recompute()
